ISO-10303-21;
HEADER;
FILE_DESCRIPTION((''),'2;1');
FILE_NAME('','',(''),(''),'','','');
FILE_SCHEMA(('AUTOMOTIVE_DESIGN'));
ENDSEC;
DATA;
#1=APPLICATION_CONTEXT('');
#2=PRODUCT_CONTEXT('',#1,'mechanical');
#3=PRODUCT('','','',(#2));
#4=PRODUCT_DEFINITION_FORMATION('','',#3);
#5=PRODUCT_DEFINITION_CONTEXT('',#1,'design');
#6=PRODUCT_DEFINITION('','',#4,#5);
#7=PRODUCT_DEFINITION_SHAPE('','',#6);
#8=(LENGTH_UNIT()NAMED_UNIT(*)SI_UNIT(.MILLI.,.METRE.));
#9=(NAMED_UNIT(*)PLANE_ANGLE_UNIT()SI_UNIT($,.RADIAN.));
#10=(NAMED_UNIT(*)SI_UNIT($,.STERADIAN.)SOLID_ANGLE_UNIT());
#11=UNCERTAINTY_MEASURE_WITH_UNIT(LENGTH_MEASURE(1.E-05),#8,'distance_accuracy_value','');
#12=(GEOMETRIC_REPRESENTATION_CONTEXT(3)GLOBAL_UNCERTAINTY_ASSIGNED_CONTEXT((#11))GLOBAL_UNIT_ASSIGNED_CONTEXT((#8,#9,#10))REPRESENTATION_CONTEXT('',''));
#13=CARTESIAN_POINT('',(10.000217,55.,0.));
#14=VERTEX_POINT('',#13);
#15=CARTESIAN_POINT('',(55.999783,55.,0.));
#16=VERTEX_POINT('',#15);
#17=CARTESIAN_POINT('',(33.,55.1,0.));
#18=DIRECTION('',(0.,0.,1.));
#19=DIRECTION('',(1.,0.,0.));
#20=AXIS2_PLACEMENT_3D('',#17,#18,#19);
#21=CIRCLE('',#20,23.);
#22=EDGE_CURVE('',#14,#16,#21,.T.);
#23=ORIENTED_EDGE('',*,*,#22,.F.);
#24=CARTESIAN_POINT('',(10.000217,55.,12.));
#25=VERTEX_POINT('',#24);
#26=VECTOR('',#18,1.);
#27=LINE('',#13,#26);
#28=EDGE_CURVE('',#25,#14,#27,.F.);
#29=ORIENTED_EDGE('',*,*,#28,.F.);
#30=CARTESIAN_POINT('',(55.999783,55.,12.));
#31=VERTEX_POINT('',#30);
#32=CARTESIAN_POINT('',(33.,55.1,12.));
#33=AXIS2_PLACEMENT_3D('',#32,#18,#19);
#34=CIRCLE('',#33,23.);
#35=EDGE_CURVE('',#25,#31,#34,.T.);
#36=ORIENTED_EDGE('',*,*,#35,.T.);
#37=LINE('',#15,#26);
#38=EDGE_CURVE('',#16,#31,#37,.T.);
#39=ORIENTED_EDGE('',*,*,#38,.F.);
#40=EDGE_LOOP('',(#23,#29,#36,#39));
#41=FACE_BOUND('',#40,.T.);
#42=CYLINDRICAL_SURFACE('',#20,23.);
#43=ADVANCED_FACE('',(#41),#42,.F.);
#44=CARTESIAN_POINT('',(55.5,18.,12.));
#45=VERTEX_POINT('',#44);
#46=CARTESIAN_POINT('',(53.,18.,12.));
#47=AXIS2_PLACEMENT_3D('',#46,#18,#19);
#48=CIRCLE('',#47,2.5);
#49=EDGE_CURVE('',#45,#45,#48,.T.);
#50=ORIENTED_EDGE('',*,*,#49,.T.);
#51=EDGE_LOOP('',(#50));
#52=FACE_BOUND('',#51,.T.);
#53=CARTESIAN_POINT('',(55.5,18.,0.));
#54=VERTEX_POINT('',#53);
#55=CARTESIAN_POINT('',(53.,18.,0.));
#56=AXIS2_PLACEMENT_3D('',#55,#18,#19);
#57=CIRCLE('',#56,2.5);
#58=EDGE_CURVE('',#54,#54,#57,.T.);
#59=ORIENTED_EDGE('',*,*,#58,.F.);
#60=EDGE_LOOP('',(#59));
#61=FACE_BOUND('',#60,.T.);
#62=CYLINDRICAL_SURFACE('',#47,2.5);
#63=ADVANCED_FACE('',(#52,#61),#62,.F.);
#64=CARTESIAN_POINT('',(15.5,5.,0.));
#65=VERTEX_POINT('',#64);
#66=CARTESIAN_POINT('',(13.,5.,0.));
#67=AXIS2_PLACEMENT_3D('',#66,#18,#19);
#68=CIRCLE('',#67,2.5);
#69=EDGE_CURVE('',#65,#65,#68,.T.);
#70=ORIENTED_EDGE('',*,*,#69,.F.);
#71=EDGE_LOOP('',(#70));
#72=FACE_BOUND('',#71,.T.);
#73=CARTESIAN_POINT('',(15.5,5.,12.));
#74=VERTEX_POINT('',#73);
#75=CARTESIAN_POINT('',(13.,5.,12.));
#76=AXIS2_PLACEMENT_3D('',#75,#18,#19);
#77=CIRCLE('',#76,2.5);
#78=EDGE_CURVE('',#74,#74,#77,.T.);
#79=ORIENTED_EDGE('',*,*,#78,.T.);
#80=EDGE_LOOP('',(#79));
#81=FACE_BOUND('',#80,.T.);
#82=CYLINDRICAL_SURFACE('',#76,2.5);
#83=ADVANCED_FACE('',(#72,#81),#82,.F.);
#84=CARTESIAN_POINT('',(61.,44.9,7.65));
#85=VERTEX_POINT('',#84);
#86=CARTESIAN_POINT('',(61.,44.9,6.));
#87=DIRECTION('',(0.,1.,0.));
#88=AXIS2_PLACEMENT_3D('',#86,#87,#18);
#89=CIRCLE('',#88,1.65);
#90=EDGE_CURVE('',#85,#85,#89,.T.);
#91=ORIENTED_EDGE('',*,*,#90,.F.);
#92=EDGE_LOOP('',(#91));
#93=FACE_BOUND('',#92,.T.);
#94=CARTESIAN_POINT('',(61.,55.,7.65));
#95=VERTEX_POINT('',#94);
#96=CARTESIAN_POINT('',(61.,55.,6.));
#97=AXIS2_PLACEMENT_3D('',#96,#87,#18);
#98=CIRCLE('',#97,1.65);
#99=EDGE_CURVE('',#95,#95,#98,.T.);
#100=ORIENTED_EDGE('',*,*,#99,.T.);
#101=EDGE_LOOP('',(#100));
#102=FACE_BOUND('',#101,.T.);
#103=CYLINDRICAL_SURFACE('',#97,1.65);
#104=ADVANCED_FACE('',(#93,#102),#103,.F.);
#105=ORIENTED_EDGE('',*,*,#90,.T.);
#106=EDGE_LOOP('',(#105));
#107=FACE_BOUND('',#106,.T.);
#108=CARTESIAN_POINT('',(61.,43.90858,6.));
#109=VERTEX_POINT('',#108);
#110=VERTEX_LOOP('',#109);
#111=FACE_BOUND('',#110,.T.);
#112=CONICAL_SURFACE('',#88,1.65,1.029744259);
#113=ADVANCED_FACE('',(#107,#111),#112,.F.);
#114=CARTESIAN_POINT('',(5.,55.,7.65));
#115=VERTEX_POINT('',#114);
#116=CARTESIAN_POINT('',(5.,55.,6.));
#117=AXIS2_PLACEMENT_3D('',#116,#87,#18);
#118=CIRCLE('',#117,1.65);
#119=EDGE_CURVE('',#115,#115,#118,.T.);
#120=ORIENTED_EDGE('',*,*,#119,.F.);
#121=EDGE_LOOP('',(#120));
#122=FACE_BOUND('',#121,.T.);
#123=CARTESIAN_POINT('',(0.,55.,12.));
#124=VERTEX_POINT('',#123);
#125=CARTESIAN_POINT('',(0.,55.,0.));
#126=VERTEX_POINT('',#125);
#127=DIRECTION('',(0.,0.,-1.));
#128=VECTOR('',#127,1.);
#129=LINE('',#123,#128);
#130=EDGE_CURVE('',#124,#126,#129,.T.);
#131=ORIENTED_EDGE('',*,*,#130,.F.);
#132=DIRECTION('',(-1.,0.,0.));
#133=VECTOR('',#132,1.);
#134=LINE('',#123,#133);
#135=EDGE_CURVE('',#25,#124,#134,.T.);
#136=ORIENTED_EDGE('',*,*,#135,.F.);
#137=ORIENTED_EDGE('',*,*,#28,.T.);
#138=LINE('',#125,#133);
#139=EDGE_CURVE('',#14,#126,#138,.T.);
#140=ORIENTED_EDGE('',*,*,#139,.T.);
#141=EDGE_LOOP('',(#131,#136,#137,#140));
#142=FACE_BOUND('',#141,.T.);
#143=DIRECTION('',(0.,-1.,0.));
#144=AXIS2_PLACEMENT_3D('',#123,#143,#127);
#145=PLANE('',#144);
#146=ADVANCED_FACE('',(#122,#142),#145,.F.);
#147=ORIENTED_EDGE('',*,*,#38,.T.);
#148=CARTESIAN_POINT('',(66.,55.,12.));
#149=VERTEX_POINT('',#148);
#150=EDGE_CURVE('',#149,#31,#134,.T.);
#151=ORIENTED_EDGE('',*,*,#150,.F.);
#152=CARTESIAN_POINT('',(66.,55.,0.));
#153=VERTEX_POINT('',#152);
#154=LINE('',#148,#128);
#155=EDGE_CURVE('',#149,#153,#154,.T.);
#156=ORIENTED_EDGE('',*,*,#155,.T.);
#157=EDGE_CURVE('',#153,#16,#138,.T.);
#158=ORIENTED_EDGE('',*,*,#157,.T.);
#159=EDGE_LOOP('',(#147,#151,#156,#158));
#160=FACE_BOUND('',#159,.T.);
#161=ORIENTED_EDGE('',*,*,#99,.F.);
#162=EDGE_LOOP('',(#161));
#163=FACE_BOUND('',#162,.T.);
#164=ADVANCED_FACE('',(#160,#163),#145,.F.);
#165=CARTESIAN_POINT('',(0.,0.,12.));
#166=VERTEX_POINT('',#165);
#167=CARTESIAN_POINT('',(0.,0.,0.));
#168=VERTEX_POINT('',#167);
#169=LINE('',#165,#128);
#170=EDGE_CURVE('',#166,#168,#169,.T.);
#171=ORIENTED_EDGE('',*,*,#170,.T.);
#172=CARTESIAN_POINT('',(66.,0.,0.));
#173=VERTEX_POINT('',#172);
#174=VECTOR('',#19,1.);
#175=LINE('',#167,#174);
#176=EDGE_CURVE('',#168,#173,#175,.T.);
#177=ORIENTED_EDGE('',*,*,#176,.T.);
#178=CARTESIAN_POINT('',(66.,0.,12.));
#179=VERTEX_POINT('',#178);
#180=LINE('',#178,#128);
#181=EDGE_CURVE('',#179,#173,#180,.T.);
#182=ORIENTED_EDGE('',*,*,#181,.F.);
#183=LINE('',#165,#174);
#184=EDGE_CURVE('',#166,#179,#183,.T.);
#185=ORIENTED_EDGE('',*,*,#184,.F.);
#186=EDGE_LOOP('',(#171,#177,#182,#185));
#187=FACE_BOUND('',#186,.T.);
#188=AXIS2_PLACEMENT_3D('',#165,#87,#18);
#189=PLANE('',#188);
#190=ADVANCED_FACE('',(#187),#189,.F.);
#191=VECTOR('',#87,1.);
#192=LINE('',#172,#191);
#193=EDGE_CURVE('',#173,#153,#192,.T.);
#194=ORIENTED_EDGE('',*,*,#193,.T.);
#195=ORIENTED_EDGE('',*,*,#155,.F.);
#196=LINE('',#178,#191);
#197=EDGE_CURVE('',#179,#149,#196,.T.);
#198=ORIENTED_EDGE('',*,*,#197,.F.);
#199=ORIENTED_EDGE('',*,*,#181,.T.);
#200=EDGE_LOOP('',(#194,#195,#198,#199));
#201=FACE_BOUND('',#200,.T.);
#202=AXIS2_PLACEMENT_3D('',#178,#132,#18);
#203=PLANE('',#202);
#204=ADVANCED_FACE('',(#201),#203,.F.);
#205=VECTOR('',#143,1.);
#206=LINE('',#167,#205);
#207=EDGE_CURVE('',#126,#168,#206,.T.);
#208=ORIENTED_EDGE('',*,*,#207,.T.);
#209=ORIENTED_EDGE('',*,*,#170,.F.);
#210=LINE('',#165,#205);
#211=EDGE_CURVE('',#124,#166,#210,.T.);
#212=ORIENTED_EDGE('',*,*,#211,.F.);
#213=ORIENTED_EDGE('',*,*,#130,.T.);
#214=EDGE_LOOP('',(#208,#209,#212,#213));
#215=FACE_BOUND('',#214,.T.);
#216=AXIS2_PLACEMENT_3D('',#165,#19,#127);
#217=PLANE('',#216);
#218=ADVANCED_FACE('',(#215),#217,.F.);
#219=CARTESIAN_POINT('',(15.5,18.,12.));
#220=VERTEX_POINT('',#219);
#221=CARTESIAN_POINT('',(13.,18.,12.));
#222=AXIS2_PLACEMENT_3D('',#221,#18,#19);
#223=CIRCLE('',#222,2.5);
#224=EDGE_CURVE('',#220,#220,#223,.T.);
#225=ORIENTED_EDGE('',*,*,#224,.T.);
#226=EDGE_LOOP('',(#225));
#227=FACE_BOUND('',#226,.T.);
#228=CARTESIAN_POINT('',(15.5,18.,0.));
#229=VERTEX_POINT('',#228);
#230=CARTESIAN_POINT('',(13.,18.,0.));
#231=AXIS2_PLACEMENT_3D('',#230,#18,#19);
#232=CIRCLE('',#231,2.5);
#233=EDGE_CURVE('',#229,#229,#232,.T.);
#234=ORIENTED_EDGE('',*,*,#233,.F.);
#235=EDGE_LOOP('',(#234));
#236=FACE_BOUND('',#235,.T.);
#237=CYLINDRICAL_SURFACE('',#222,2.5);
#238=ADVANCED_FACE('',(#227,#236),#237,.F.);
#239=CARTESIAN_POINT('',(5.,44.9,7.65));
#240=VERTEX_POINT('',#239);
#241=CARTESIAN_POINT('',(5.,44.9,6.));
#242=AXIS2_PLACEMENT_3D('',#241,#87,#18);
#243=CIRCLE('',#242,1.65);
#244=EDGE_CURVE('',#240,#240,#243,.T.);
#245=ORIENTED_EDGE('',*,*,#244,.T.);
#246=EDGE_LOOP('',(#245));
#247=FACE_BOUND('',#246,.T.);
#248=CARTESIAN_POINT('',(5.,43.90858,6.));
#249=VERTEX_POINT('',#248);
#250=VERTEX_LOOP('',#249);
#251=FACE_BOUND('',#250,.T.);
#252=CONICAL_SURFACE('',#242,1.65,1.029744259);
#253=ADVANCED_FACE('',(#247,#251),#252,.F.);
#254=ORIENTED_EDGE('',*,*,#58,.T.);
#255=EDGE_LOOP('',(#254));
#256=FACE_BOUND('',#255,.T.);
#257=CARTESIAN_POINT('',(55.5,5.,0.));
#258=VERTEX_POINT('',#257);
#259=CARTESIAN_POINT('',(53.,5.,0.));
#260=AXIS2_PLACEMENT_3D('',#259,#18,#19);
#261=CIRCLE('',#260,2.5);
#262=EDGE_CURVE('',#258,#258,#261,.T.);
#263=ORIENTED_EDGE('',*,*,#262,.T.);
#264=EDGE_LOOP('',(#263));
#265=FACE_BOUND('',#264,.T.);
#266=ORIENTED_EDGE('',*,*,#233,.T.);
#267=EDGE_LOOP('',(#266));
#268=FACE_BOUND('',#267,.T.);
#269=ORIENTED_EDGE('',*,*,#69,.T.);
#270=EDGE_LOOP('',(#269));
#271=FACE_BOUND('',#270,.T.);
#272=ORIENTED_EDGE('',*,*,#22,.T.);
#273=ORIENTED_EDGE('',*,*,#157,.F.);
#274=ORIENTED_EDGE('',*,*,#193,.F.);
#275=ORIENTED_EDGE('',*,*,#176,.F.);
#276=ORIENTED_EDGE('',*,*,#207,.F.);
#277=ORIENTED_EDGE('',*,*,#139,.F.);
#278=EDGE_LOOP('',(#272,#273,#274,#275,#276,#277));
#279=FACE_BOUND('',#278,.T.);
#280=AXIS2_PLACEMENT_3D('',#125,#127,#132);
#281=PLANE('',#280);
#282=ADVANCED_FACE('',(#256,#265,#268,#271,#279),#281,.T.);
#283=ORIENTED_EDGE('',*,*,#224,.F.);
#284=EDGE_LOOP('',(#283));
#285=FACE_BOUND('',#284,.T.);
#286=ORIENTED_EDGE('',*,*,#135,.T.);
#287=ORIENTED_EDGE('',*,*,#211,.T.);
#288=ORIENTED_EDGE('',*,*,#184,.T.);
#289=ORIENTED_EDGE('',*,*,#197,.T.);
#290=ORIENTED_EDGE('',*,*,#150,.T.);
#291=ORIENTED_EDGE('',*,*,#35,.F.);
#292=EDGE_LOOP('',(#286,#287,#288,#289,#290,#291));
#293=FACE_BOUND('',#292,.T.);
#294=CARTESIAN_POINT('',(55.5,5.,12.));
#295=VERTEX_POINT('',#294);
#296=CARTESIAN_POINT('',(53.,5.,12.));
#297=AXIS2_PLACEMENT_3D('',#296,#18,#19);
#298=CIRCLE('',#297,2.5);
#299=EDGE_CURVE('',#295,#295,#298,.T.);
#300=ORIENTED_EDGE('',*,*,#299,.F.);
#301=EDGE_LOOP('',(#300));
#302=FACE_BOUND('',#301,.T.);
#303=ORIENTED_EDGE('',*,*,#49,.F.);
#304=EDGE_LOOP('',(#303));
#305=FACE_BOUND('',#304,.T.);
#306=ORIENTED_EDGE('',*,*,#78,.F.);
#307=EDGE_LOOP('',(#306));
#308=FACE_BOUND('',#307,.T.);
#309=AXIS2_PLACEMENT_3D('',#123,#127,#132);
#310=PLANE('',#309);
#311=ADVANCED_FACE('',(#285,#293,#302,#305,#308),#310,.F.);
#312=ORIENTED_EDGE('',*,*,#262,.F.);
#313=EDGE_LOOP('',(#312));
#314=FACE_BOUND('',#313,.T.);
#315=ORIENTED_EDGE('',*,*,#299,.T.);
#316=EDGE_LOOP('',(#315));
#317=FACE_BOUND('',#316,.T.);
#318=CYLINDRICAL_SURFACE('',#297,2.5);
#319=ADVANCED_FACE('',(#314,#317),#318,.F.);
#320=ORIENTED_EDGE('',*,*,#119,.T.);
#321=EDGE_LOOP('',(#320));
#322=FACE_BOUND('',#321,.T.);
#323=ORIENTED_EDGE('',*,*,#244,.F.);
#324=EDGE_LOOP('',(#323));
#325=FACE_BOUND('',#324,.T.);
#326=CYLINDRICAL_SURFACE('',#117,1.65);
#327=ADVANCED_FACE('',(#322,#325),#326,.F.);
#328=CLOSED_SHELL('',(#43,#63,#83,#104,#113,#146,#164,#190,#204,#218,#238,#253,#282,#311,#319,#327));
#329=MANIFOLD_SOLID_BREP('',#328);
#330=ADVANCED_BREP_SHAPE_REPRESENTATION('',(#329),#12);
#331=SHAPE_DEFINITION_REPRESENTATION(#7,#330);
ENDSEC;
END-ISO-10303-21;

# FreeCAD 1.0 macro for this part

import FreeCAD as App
import Part
import Sketcher


def add_polygon(sketch, points):
    """Adds a closed chain of lines whose ends are joined by coincident constraints."""
    first, n = sketch.GeometryCount, len(points)
    for a, b in zip(points, points[1:] + points[:1]):
        sketch.addGeometry(Part.LineSegment(App.Vector(*a, 0), App.Vector(*b, 0)), False)
    for i in range(n):
        sketch.addConstraint(Sketcher.Constraint("Coincident", first + i, 2, first + (i + 1) % n, 1))

doc = App.newDocument("Part")
body = doc.addObject("PartDesign::Body", "Body")

# Sketch on XY plane
sketch1 = body.newObject("Sketcher::SketchObject", "Sketch")
sketch1.AttachmentSupport = (doc.getObject("XY_Plane"), [""])
sketch1.MapMode = "FlatFace"
add_polygon(sketch1, [(0, 55), (0, 0), (66, 0), (66, 55)])  # lines 0-3
sketch1.addConstraint([
    Sketcher.Constraint("Vertical", 0),
    Sketcher.Constraint("Horizontal", 1),
    Sketcher.Constraint("Vertical", 2),
    Sketcher.Constraint("Horizontal", 3),
    Sketcher.Constraint("Coincident", 0, 2, -1, 1),
    Sketcher.Constraint("DistanceX", 1, 1, 1, 2, 66.0),
    Sketcher.Constraint("DistanceY", 0, 2, 0, 1, 55.0),
])
pad1 = body.newObject("PartDesign::Pad", "Pad")
pad1.Profile = sketch1
pad1.Length = 12

# Sketch on XY plane
sketch2 = body.newObject("Sketcher::SketchObject", "Sketch001")
sketch2.AttachmentSupport = (doc.getObject("XY_Plane"), [""])
sketch2.MapMode = "FlatFace"
sketch2.AttachmentOffset = App.Placement(App.Vector(0, 0, 12), App.Rotation())
sketch2.addGeometry(Part.Circle(App.Vector(33, 55.1, 0), App.Vector(0, 0, 1), 23), False)
sketch2.addConstraint([
    Sketcher.Constraint("Diameter", 0, 46.0),
    Sketcher.Constraint("DistanceX", -1, 1, 0, 3, 33.0),
    Sketcher.Constraint("DistanceY", -1, 1, 0, 3, 55.1),
])
pocket1 = body.newObject("PartDesign::Pocket", "Pocket")
pocket1.Profile = sketch2
pocket1.Type = "ThroughAll"

# Sketch on XY plane
sketch3 = body.newObject("Sketcher::SketchObject", "Sketch002")
sketch3.AttachmentSupport = (doc.getObject("XY_Plane"), [""])
sketch3.MapMode = "FlatFace"
sketch3.AttachmentOffset = App.Placement(App.Vector(0, 0, 12), App.Rotation())
sketch3.addGeometry([
    Part.Circle(App.Vector(13, 18, 0), App.Vector(0, 0, 1), 2.5),
    Part.Circle(App.Vector(53, 18, 0), App.Vector(0, 0, 1), 2.5),
    Part.Circle(App.Vector(13, 5, 0), App.Vector(0, 0, 1), 2.5),
    Part.Circle(App.Vector(53, 5, 0), App.Vector(0, 0, 1), 2.5),
], False)
sketch3.addConstraint([
    Sketcher.Constraint("Equal", 0, 1),
    Sketcher.Constraint("Equal", 1, 2),
    Sketcher.Constraint("Equal", 2, 3),
    Sketcher.Constraint("Horizontal", 0, 3, 1, 3),
    Sketcher.Constraint("Horizontal", 2, 3, 3, 3),
    Sketcher.Constraint("Vertical", 0, 3, 2, 3),
    Sketcher.Constraint("Vertical", 1, 3, 3, 3),
    Sketcher.Constraint("Diameter", 0, 5.0),
    Sketcher.Constraint("DistanceX", -1, 1, 0, 3, 13.0),
    Sketcher.Constraint("DistanceY", -1, 1, 0, 3, 18.0),
    Sketcher.Constraint("DistanceX", -1, 1, 1, 3, 53.0),
    Sketcher.Constraint("DistanceY", -1, 1, 2, 3, 5.0),
])
doc.recompute()
hole = body.newObject("PartDesign::Hole", "Hole")
hole.Profile = sketch3
hole.ThreadType = "None"
hole.Diameter = 5
hole.DepthType = "ThroughAll"

# Sketch on XZ plane
sketch4 = body.newObject("Sketcher::SketchObject", "Sketch003")
sketch4.AttachmentSupport = (doc.getObject("XZ_Plane"), [""])
sketch4.MapMode = "FlatFace"
sketch4.AttachmentOffset = App.Placement(App.Vector(0, 0, -55), App.Rotation())
sketch4.addGeometry([
    Part.Circle(App.Vector(5, 6, 0), App.Vector(0, 0, 1), 1.65),
    Part.Circle(App.Vector(61, 6, 0), App.Vector(0, 0, 1), 1.65),
], False)
sketch4.addConstraint([
    Sketcher.Constraint("Equal", 0, 1),
    Sketcher.Constraint("Horizontal", 0, 3, 1, 3),
    Sketcher.Constraint("Diameter", 0, 3.3),
    Sketcher.Constraint("DistanceX", -1, 1, 0, 3, 5.0),
    Sketcher.Constraint("DistanceY", -1, 1, 0, 3, 6.0),
    Sketcher.Constraint("DistanceX", -1, 1, 1, 3, 61.0),
])
doc.recompute()
hole2 = body.newObject("PartDesign::Hole", "Hole001")
hole2.Profile = sketch4
hole2.ThreadType = "None"
hole2.Diameter = 3.3
hole2.DepthType = "Dimension"
hole2.Depth = 10.1
hole2.DrillPoint = "Angled"
hole2.DrillPointAngle = 118
hole2.Reversed = True

doc.recompute()
